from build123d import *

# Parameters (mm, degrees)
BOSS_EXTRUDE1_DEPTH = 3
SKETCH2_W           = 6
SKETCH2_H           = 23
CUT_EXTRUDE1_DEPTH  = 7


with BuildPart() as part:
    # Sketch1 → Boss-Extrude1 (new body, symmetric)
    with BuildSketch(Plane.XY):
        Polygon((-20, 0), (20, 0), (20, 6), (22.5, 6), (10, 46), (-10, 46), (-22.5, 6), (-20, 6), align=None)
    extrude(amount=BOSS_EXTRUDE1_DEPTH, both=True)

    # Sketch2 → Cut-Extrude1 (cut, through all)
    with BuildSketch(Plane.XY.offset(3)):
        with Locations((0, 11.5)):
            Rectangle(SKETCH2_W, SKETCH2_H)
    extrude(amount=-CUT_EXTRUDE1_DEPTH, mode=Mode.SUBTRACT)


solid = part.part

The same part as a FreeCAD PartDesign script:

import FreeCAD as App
import Part
import Sketcher

V = App.Vector
Q = App.Units.Quantity

doc = App.newDocument("Part")
body = doc.addObject("PartDesign::Body", "Body")

sketch1 = doc.addObject("Sketcher::SketchObject", "Sketch")
body.addObject(sketch1)
sketch1.AttachmentSupport = (doc.XY_Plane, [""])
sketch1.MapMode = "FlatFace"
sketch1.addGeometry([
    Part.LineSegment(V(-20, 0, 0), V(20, 0, 0)),
    Part.LineSegment(V(20, 0, 0), V(20, 6, 0)),
    Part.LineSegment(V(20, 6, 0), V(22.5, 6, 0)),
    Part.LineSegment(V(22.5, 6, 0), V(10, 46, 0)),
    Part.LineSegment(V(10, 46, 0), V(-10, 46, 0)),
    Part.LineSegment(V(-10, 46, 0), V(-22.5, 6, 0)),
    Part.LineSegment(V(-22.5, 6, 0), V(-20, 6, 0)),
    Part.LineSegment(V(-20, 6, 0), V(-20, 0, 0)),
], False)
sketch1.addConstraint([
    Sketcher.Constraint("Coincident", 0, 2, 1, 1),
    Sketcher.Constraint("Coincident", 1, 2, 2, 1),
    Sketcher.Constraint("Coincident", 2, 2, 3, 1),
    Sketcher.Constraint("Coincident", 3, 2, 4, 1),
    Sketcher.Constraint("Coincident", 4, 2, 5, 1),
    Sketcher.Constraint("Coincident", 5, 2, 6, 1),
    Sketcher.Constraint("Coincident", 6, 2, 7, 1),
    Sketcher.Constraint("Coincident", 7, 2, 0, 1),
    Sketcher.Constraint("Horizontal", 0),
    Sketcher.Constraint("Vertical", 1),
    Sketcher.Constraint("Horizontal", 2),
    Sketcher.Constraint("Horizontal", 4),
    Sketcher.Constraint("Horizontal", 6),
    Sketcher.Constraint("Vertical", 7),
    Sketcher.Constraint("Symmetric", 0, 2, 7, 2, -1, 1),
    Sketcher.Constraint("Symmetric", 2, 2, 5, 2, -2),
    Sketcher.Constraint("Equal", 3, 5),
    Sketcher.Constraint("DistanceX", 0, 1, 0, 2, Q("40 mm")),
    Sketcher.Constraint("DistanceX", 4, 2, 4, 1, Q("20 mm")),
    Sketcher.Constraint("DistanceY", 1, 1, 1, 2, Q("6 mm")),
    Sketcher.Constraint("DistanceX", 2, 1, 2, 2, Q("2.5 mm")),
    Sketcher.Constraint("DistanceY", -1, 1, 3, 2, Q("46 mm")),
])
pad1 = doc.addObject("PartDesign::Pad", "Pad")
body.addObject(pad1)
pad1.Profile = sketch1
pad1.Length = 6
pad1.Midplane = True

sketch2 = doc.addObject("Sketcher::SketchObject", "Sketch001")
body.addObject(sketch2)
sketch2.AttachmentSupport = (doc.XY_Plane, [""])
sketch2.MapMode = "FlatFace"
sketch2.AttachmentOffset = App.Placement(V(0, 0, 3), App.Rotation())
sketch2.addGeometry([
    Part.LineSegment(V(-3, 23, 0), V(-3, 0, 0)),
    Part.LineSegment(V(-3, 0, 0), V(3, 0, 0)),
    Part.LineSegment(V(3, 0, 0), V(3, 23, 0)),
    Part.LineSegment(V(3, 23, 0), V(-3, 23, 0)),
], False)
sketch2.addConstraint([
    Sketcher.Constraint("Coincident", 0, 2, 1, 1),
    Sketcher.Constraint("Coincident", 1, 2, 2, 1),
    Sketcher.Constraint("Coincident", 2, 2, 3, 1),
    Sketcher.Constraint("Coincident", 3, 2, 0, 1),
    Sketcher.Constraint("Vertical", 0),
    Sketcher.Constraint("Horizontal", 1),
    Sketcher.Constraint("Vertical", 2),
    Sketcher.Constraint("Horizontal", 3),
    Sketcher.Constraint("Symmetric", 0, 2, 1, 2, -1, 1),
    Sketcher.Constraint("DistanceX", 1, 1, 1, 2, Q("6 mm")),
    Sketcher.Constraint("DistanceY", 0, 2, 0, 1, Q("23 mm")),
])
pocket1 = doc.addObject("PartDesign::Pocket", "Pocket")
body.addObject(pocket1)
pocket1.Profile = sketch2
pocket1.Type = "ThroughAll"

doc.recompute()
